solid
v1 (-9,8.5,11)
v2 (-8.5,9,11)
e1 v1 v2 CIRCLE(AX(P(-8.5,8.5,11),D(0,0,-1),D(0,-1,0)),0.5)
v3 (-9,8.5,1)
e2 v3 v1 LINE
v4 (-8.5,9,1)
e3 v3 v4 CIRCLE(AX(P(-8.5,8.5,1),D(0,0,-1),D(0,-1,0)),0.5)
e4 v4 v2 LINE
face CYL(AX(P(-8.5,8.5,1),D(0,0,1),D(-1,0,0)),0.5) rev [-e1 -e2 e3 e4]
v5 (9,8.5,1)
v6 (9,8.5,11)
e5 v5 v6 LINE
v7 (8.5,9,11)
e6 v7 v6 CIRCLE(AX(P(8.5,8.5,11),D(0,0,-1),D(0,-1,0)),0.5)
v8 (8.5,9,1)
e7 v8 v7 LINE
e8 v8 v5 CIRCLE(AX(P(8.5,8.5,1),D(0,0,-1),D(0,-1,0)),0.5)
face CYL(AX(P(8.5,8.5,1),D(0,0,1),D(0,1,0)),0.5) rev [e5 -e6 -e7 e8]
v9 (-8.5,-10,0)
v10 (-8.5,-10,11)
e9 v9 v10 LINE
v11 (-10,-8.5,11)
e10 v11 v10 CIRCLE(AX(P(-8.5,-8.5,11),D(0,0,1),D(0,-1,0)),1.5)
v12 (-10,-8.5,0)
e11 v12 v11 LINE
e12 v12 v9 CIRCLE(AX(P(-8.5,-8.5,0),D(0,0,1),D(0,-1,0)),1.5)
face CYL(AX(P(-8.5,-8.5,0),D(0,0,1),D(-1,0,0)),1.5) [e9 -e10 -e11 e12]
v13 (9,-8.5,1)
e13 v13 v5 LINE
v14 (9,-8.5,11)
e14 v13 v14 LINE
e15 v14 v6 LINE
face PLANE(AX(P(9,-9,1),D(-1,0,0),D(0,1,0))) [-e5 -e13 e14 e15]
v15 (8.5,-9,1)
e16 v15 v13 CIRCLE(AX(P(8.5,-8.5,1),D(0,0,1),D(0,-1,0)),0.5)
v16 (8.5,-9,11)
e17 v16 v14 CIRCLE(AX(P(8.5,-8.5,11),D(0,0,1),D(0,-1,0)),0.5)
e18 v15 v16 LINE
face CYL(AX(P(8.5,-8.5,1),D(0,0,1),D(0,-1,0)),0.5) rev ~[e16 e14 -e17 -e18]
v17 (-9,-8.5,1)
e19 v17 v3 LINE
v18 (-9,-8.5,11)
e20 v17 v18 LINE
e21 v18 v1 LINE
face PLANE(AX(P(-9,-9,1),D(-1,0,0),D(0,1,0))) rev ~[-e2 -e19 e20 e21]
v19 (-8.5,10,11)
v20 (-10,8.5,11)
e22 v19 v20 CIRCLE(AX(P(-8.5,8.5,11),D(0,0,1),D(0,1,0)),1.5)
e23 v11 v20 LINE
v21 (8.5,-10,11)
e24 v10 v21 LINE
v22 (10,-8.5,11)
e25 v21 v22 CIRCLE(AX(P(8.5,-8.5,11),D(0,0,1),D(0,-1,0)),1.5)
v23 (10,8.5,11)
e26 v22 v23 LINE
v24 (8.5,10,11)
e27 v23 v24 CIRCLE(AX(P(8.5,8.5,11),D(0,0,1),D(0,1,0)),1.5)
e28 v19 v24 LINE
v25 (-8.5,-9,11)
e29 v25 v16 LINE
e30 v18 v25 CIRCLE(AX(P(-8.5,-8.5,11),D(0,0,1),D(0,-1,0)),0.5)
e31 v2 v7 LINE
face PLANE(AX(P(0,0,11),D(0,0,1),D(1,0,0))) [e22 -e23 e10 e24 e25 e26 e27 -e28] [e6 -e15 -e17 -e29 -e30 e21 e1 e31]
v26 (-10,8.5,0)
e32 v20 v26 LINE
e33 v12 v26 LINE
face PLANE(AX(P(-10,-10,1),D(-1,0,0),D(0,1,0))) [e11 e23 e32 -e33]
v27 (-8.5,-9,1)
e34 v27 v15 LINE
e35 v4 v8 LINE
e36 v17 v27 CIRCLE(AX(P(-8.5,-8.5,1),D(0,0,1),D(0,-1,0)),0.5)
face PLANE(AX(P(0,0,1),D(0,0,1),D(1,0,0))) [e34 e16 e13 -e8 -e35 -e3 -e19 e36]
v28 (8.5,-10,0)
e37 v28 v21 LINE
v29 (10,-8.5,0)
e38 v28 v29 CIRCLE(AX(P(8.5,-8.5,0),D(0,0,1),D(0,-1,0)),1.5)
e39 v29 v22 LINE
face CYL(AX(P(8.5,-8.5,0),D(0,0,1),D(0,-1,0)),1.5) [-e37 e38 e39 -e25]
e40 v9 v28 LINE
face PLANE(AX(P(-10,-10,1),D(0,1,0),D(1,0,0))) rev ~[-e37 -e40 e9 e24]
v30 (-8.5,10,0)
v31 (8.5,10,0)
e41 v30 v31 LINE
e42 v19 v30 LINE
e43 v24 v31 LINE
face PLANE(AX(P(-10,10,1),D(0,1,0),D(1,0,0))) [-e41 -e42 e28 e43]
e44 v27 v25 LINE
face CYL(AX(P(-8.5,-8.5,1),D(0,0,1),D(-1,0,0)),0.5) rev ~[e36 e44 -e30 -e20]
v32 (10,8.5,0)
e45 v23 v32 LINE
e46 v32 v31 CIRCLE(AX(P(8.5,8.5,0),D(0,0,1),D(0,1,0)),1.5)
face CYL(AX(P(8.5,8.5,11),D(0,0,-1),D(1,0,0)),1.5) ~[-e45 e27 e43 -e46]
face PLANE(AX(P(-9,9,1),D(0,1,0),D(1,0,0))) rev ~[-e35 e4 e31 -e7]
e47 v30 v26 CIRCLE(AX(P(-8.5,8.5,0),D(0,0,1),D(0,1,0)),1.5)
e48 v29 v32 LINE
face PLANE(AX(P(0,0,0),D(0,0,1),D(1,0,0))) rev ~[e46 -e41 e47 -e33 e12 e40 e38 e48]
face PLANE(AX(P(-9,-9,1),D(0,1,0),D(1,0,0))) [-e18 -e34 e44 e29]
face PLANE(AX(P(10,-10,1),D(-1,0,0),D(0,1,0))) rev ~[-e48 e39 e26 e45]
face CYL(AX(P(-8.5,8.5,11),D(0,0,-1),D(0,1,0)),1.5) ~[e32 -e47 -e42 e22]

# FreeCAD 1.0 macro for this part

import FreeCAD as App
import Part
import Sketcher

V = App.Vector
Q = App.Units.Quantity


def edges_at(feature, points):
    """Names of the edges that pass closest to the given points."""
    edges = feature.Shape.Edges
    near = lambda p: min(range(len(edges)), key=lambda i: edges[i].distToShape(Part.Vertex(*p))[0])
    return sorted({f"Edge{near(p) + 1}" for p in points})

doc = App.newDocument("Part")
params = doc.addObject("Spreadsheet::Sheet", "Params")
for row, (alias, value) in enumerate([
    ("sketch1_width", "20 mm"),
    ("pad1_length", "1 mm"),
    ("sketch2_width", "20 mm"),
    ("sketch2_width2", "18 mm"),
    ("pad2_length", "10 mm"),
    ("fillet_radius", "1.5 mm"),
    ("fillet2_radius", "0.5 mm"),
    ("fillet3_radius", "1.5 mm"),
    ("fillet4_radius", "1.5 mm"),
    ("fillet5_radius", "1.5 mm"),
    ("fillet6_radius", "0.5 mm"),
    ("fillet7_radius", "0.5 mm"),
    ("fillet8_radius", "0.5 mm"),
], start=1):
    params.set(f"A{row}", alias)
    params.set(f"B{row}", "=" + value)
    params.setAlias(f"B{row}", alias)

body = doc.addObject("PartDesign::Body", "Body")

# Sketch on XY plane
sketch1 = body.newObject("Sketcher::SketchObject", "Sketch")
sketch1.AttachmentSupport = (doc.getObject("XY_Plane"), [""])
sketch1.MapMode = "FlatFace"
sketch1.addGeometry([
    Part.LineSegment(V(-10, 10, 0), V(-10, -10, 0)),
    Part.LineSegment(V(-10, -10, 0), V(10, -10, 0)),
    Part.LineSegment(V(10, -10, 0), V(10, 10, 0)),
    Part.LineSegment(V(10, 10, 0), V(-10, 10, 0)),
], False)
sketch1.addConstraint([
    Sketcher.Constraint("Coincident", 0, 2, 1, 1),
    Sketcher.Constraint("Coincident", 1, 2, 2, 1),
    Sketcher.Constraint("Coincident", 2, 2, 3, 1),
    Sketcher.Constraint("Coincident", 3, 2, 0, 1),
    Sketcher.Constraint("Vertical", 0),
    Sketcher.Constraint("Horizontal", 1),
    Sketcher.Constraint("Vertical", 2),
    Sketcher.Constraint("Horizontal", 3),
    Sketcher.Constraint("Symmetric", 0, 2, 2, 2, -1, 1),
    Sketcher.Constraint("Equal", 3, 0),
    Sketcher.Constraint("DistanceX", 1, 1, 1, 2, Q("20 mm")),
])
sketch1.setExpression("Constraints[10]", "Params.sketch1_width")
pad1 = body.newObject("PartDesign::Pad", "Pad")
pad1.Profile = sketch1
pad1.setExpression("Length", "Params.pad1_length")

# Sketch on XY plane
sketch2 = body.newObject("Sketcher::SketchObject", "Sketch001")
sketch2.AttachmentSupport = (doc.getObject("XY_Plane"), [""])
sketch2.MapMode = "FlatFace"
sketch2.AttachmentOffset = App.Placement(V(0, 0, 1), App.Rotation())
sketch2.addGeometry([
    Part.LineSegment(V(-10, 10, 0), V(-10, -10, 0)),  # 0
    Part.LineSegment(V(-10, -10, 0), V(10, -10, 0)),  # 1
    Part.LineSegment(V(10, -10, 0), V(10, 10, 0)),  # 2
    Part.LineSegment(V(10, 10, 0), V(-10, 10, 0)),  # 3
    Part.LineSegment(V(9, -9, 0), V(-9, -9, 0)),  # 4
    Part.LineSegment(V(-9, -9, 0), V(-9, 9, 0)),  # 5
    Part.LineSegment(V(-9, 9, 0), V(9, 9, 0)),  # 6
    Part.LineSegment(V(9, 9, 0), V(9, -9, 0)),  # 7
], False)
sketch2.addConstraint([
    Sketcher.Constraint("Coincident", 0, 2, 1, 1),
    Sketcher.Constraint("Coincident", 1, 2, 2, 1),
    Sketcher.Constraint("Coincident", 2, 2, 3, 1),
    Sketcher.Constraint("Coincident", 3, 2, 0, 1),
    Sketcher.Constraint("Coincident", 4, 2, 5, 1),
    Sketcher.Constraint("Coincident", 5, 2, 6, 1),
    Sketcher.Constraint("Coincident", 6, 2, 7, 1),
    Sketcher.Constraint("Coincident", 7, 2, 4, 1),
    Sketcher.Constraint("Vertical", 0),
    Sketcher.Constraint("Horizontal", 1),
    Sketcher.Constraint("Vertical", 2),
    Sketcher.Constraint("Horizontal", 3),
    Sketcher.Constraint("Horizontal", 4),
    Sketcher.Constraint("Vertical", 5),
    Sketcher.Constraint("Horizontal", 6),
    Sketcher.Constraint("Vertical", 7),
    Sketcher.Constraint("Symmetric", 0, 2, 2, 2, -1, 1),
    Sketcher.Constraint("Symmetric", 4, 2, 6, 2, -1, 1),
    Sketcher.Constraint("Equal", 3, 0),
    Sketcher.Constraint("Equal", 6, 5),
    Sketcher.Constraint("DistanceX", 1, 1, 1, 2, Q("20 mm")),
    Sketcher.Constraint("DistanceX", 4, 2, 4, 1, Q("18 mm")),
])
sketch2.setExpression("Constraints[20]", "Params.sketch2_width")
sketch2.setExpression("Constraints[21]", "Params.sketch2_width2")
pad2 = body.newObject("PartDesign::Pad", "Pad001")
pad2.Profile = sketch2
pad2.setExpression("Length", "Params.pad2_length")
doc.recompute()

fillet = body.newObject("PartDesign::Fillet", "Fillet")
fillet.Base = (pad2, edges_at(pad2, [(10, -10, 5.5)]))
fillet.setExpression("Radius", "Params.fillet_radius")
doc.recompute()

fillet2 = body.newObject("PartDesign::Fillet", "Fillet001")
fillet2.Base = (fillet, edges_at(fillet, [(9, -9, 6)]))
fillet2.setExpression("Radius", "Params.fillet2_radius")
doc.recompute()

fillet3 = body.newObject("PartDesign::Fillet", "Fillet002")
fillet3.Base = (fillet2, edges_at(fillet2, [(10, 10, 5.5)]))
fillet3.setExpression("Radius", "Params.fillet3_radius")
doc.recompute()

fillet4 = body.newObject("PartDesign::Fillet", "Fillet003")
fillet4.Base = (fillet3, edges_at(fillet3, [(-10, 10, 5.5)]))
fillet4.setExpression("Radius", "Params.fillet4_radius")
doc.recompute()

fillet5 = body.newObject("PartDesign::Fillet", "Fillet004")
fillet5.Base = (fillet4, edges_at(fillet4, [(-10, -10, 5.5)]))
fillet5.setExpression("Radius", "Params.fillet5_radius")
doc.recompute()

fillet6 = body.newObject("PartDesign::Fillet", "Fillet005")
fillet6.Base = (fillet5, edges_at(fillet5, [(-9, 9, 6)]))
fillet6.setExpression("Radius", "Params.fillet6_radius")
doc.recompute()

fillet7 = body.newObject("PartDesign::Fillet", "Fillet006")
fillet7.Base = (fillet6, edges_at(fillet6, [(9, 9, 6)]))
fillet7.setExpression("Radius", "Params.fillet7_radius")
doc.recompute()

fillet8 = body.newObject("PartDesign::Fillet", "Fillet007")
fillet8.Base = (fillet7, edges_at(fillet7, [(-9, -9, 6)]))
fillet8.setExpression("Radius", "Params.fillet8_radius")

doc.recompute()
